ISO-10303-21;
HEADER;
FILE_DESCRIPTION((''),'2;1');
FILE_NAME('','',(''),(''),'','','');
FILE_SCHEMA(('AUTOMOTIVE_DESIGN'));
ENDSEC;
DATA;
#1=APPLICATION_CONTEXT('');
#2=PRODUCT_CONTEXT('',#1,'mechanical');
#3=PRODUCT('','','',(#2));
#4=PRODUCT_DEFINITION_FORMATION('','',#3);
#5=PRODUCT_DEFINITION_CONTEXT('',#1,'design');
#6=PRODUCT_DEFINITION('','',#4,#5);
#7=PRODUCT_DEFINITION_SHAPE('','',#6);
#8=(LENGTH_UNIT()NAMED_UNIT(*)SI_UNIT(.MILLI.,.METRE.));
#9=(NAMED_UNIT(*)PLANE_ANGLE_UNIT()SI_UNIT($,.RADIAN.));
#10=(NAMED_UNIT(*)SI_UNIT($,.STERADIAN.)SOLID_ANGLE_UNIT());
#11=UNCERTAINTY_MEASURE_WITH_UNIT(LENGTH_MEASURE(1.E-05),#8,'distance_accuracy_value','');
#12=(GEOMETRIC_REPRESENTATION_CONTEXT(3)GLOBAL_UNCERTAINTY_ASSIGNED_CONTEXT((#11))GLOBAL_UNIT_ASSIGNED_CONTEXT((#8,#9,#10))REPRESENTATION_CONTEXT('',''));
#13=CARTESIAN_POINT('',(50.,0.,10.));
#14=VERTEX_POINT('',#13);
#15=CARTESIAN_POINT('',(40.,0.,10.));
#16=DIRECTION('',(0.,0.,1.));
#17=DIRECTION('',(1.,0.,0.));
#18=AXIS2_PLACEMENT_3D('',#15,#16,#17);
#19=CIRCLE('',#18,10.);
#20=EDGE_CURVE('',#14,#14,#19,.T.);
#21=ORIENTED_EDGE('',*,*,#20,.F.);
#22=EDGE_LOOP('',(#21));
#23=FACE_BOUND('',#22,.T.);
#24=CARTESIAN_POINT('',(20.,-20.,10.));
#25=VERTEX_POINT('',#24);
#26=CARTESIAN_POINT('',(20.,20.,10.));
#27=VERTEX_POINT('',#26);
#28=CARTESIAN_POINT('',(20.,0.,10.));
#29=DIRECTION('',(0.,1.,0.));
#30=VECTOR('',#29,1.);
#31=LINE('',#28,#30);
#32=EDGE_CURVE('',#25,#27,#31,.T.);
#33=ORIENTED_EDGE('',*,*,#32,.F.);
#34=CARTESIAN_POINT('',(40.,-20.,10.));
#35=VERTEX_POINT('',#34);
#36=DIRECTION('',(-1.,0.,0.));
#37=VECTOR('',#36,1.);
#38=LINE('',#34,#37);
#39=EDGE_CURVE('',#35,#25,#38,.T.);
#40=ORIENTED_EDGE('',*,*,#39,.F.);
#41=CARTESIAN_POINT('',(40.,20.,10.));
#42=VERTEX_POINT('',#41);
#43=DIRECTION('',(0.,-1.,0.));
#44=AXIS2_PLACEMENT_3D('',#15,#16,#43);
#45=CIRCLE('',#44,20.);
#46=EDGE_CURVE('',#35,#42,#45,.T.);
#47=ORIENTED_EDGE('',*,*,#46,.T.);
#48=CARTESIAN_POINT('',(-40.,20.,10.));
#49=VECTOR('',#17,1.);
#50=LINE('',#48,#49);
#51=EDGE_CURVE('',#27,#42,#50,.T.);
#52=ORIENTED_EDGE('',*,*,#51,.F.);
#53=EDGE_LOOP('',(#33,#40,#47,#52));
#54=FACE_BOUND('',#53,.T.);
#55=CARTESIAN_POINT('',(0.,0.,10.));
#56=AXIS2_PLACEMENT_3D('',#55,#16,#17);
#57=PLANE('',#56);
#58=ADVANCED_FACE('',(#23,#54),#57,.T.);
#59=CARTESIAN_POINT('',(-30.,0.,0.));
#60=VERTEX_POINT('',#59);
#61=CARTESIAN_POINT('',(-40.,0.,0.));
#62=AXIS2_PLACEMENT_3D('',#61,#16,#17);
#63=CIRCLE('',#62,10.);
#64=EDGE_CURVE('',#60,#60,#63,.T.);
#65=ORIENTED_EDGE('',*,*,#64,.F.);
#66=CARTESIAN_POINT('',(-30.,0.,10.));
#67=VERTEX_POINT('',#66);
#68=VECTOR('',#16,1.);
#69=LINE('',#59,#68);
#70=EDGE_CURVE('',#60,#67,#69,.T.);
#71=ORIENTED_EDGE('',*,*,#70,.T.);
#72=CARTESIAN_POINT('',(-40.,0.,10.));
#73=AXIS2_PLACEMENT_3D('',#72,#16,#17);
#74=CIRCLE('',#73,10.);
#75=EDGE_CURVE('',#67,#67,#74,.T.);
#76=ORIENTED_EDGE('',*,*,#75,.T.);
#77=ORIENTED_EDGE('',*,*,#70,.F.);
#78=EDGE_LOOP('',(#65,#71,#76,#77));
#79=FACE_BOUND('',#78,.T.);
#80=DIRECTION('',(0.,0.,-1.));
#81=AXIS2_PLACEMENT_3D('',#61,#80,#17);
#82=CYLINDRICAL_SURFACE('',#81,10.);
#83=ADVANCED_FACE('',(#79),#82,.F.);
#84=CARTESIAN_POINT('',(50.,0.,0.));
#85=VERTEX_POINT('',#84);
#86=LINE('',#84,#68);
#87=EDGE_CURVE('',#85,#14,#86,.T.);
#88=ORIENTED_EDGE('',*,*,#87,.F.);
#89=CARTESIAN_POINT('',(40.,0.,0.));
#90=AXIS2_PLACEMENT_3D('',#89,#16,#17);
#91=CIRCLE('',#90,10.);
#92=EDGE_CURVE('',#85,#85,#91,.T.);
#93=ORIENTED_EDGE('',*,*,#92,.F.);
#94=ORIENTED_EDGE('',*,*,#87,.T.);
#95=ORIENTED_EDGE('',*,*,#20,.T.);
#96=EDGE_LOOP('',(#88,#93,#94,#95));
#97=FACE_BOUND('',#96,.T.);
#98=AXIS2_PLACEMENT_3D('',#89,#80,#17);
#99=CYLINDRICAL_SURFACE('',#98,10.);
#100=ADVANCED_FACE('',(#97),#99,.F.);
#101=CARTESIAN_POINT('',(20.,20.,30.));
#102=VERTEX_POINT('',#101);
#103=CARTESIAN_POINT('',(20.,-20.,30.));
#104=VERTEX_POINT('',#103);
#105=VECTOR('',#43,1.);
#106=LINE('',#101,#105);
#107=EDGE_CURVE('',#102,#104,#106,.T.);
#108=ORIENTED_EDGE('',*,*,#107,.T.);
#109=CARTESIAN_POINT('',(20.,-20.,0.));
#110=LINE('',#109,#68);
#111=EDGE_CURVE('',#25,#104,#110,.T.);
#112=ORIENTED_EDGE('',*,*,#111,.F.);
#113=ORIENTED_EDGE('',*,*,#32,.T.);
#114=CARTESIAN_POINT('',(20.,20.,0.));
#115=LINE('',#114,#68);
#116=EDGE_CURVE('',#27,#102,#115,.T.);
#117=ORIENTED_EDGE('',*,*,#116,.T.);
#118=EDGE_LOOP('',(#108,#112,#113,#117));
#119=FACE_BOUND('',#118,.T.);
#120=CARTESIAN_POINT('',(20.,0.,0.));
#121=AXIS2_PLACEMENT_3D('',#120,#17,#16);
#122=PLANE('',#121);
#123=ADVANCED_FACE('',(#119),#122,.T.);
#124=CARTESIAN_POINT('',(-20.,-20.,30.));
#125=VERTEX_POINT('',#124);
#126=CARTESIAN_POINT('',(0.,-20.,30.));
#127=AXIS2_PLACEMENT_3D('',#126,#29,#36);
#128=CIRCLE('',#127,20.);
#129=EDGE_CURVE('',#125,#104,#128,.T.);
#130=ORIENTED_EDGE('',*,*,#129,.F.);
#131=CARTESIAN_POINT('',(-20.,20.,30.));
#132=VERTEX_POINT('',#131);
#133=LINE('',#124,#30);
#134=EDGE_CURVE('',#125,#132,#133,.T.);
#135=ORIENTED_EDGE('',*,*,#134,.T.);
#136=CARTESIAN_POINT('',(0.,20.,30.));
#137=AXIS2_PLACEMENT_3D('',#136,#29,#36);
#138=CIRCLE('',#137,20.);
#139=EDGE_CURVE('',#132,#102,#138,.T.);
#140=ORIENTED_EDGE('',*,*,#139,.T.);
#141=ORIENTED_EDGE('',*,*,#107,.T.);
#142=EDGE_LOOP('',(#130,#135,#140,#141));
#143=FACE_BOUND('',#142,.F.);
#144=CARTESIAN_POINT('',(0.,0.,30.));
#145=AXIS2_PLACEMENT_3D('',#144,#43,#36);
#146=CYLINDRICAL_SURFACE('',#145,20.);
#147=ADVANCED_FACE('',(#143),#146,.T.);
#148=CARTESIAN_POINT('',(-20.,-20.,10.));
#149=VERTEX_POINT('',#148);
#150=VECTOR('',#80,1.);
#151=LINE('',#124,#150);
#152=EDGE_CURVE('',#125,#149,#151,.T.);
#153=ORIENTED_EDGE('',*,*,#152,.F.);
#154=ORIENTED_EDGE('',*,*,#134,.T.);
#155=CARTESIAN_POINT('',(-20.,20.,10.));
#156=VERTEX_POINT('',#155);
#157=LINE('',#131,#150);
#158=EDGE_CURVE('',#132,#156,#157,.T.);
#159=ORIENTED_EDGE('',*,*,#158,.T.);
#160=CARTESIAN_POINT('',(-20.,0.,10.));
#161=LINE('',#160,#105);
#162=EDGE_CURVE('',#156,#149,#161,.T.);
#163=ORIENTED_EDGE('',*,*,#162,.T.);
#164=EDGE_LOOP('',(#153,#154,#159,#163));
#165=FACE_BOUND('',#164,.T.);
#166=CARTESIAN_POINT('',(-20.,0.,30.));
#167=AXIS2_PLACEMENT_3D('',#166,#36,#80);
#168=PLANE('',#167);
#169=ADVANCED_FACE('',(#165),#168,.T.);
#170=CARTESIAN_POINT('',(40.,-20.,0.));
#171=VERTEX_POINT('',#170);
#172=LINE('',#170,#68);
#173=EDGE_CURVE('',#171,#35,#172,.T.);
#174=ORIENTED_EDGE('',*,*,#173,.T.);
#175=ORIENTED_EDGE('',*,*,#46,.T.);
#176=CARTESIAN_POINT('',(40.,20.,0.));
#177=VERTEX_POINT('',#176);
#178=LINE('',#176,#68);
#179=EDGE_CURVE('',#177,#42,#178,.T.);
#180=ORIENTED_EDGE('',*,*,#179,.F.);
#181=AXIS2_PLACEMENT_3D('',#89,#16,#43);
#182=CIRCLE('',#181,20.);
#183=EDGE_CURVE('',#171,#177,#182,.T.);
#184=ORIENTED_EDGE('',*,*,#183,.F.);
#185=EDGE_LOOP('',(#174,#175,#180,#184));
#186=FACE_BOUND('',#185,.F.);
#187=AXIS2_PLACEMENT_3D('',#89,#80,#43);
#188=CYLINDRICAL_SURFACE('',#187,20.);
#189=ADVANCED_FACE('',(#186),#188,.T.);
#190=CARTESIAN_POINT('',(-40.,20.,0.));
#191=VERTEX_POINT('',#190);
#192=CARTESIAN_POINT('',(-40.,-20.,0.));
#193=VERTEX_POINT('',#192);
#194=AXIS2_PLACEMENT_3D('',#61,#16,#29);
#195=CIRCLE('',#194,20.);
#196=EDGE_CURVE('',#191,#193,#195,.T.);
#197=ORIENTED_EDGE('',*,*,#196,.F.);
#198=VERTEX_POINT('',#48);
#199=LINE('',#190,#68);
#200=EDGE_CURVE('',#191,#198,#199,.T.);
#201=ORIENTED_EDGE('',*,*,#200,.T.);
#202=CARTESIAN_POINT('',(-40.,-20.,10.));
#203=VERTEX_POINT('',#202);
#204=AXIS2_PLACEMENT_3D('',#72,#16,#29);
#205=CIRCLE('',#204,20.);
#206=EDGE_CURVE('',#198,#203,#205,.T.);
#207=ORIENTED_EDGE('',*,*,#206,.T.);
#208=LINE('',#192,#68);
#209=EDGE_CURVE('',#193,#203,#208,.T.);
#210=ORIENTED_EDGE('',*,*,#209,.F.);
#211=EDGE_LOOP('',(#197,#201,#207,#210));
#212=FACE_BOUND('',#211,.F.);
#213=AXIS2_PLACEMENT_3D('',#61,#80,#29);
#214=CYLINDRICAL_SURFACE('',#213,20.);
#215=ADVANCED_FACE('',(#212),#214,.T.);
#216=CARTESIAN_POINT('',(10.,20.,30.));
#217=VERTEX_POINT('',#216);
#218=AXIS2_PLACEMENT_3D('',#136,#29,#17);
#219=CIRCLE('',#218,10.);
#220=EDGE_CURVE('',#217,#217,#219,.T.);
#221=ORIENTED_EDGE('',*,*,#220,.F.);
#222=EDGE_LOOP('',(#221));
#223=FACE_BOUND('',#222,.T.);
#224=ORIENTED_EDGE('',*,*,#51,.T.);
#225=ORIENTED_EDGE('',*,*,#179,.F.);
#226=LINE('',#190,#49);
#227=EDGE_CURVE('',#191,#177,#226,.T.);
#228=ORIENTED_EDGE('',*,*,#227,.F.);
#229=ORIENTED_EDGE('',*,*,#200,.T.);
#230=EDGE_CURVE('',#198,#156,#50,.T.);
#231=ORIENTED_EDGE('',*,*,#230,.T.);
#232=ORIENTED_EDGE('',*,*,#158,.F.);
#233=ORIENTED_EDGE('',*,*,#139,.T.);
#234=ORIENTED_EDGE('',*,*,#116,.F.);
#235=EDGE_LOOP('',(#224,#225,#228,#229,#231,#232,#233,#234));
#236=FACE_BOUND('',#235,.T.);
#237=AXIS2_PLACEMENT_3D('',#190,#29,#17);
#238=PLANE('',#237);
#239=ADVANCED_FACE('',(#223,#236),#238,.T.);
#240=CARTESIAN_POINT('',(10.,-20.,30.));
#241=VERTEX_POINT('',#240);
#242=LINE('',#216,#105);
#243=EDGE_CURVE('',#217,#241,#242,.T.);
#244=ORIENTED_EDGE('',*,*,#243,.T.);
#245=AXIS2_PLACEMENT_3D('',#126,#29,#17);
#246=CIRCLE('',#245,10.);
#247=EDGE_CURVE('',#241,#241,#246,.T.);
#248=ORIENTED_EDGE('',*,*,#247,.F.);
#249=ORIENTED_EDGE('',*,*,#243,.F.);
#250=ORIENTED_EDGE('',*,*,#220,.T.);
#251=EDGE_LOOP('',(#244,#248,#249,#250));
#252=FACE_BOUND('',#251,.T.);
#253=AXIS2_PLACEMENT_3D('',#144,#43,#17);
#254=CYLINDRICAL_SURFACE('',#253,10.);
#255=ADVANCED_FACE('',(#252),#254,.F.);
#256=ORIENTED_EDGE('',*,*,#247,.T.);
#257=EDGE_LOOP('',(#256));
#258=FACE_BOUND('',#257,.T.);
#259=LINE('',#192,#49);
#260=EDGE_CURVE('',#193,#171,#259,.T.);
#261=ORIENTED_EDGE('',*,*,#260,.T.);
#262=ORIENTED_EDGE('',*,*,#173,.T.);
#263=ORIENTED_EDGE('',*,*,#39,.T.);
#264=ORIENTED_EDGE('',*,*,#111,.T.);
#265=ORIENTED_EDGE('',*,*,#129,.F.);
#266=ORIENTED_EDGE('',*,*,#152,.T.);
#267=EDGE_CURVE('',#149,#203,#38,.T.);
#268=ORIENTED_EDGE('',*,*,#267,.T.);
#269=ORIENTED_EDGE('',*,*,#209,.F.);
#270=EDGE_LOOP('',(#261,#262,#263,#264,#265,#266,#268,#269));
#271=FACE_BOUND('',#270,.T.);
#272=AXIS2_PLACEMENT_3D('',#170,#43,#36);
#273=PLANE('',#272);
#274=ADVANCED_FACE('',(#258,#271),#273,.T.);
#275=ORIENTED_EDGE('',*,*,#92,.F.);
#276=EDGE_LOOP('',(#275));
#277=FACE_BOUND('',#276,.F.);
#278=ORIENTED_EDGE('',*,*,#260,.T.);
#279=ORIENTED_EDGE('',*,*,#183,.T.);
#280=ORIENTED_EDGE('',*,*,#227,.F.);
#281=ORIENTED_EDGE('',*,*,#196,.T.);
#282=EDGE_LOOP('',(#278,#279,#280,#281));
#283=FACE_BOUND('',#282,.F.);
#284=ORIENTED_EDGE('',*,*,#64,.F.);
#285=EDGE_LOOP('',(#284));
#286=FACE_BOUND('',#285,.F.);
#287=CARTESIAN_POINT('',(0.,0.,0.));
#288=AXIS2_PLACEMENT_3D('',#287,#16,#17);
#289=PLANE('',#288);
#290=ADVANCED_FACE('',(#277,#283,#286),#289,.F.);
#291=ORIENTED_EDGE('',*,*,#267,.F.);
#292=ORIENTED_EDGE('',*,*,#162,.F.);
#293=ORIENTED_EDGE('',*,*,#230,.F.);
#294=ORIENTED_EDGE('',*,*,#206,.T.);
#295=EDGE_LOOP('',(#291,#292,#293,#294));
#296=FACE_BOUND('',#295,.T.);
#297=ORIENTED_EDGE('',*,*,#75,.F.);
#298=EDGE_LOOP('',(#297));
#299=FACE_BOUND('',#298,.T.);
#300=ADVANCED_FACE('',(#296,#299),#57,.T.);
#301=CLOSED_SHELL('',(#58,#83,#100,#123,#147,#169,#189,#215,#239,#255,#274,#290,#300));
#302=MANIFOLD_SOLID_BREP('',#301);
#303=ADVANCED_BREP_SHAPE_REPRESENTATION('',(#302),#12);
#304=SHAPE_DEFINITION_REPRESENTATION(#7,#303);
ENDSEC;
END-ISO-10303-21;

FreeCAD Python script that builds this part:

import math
import FreeCAD as App
import Part
import Sketcher
from FreeCAD import Vector
Q = App.Units.Quantity

doc = App.newDocument("Part")
body = doc.addObject("PartDesign::Body", "Body")

# Sketch on XY plane
sketch1 = body.newObject("Sketcher::SketchObject", "Sketch")
sketch1.AttachmentSupport = (doc.getObject("XY_Plane"), [""])
sketch1.MapMode = "FlatFace"
sketch1.addGeometry([
    Part.LineSegment(Vector(-40, -20, 0), Vector(40, -20, 0)),  # 0
    Part.ArcOfCircle(Part.Circle(Vector(40, 0, 0), Vector(0, 0, 1), 20), math.radians(-90), math.radians(90)),  # 1
    Part.LineSegment(Vector(40, 20, 0), Vector(-40, 20, 0)),  # 2
    Part.ArcOfCircle(Part.Circle(Vector(-40, 0, 0), Vector(0, 0, 1), 20), math.radians(90), math.radians(270)),  # 3
    Part.Circle(Vector(-40, 0, 0), Vector(0, 0, 1), 10),  # 4
    Part.Circle(Vector(40, 0, 0), Vector(0, 0, 1), 10),  # 5
], False)
sketch1.addConstraint([
    Sketcher.Constraint("Tangent", 0, 2, 1, 1),
    Sketcher.Constraint("Tangent", 1, 2, 2, 1),
    Sketcher.Constraint("Tangent", 2, 2, 3, 1),
    Sketcher.Constraint("Tangent", 3, 2, 0, 1),
    Sketcher.Constraint("Horizontal", 0),
    Sketcher.Constraint("Horizontal", 2),
    Sketcher.Constraint("Coincident", 4, 3, 3, 3),
    Sketcher.Constraint("Coincident", 5, 3, 1, 3),
    Sketcher.Constraint("Equal", 4, 5),
    Sketcher.Constraint("Symmetric", 1, 3, 3, 3, -1, 1),
    Sketcher.Constraint("Radius", 1, Q("20 mm")),
    Sketcher.Constraint("DistanceX", 0, 1, 0, 2, Q("80 mm")),
    Sketcher.Constraint("Diameter", 4, Q("20 mm")),
])
pad1 = body.newObject("PartDesign::Pad", "Pad")
pad1.Profile = sketch1
pad1.Length = 10

# Sketch on XZ plane
sketch2 = body.newObject("Sketcher::SketchObject", "Sketch001")
sketch2.AttachmentSupport = (doc.getObject("XZ_Plane"), [""])
sketch2.MapMode = "FlatFace"
sketch2.addGeometry([
    Part.LineSegment(Vector(20, 0, 0), Vector(-20, 0, 0)),  # 0
    Part.LineSegment(Vector(-20, 0, 0), Vector(-20, 30, 0)),  # 1
    Part.ArcOfCircle(Part.Circle(Vector(0, 30, 0), Vector(0, 0, 1), 20), math.radians(0), math.radians(180)),  # 2
    Part.LineSegment(Vector(20, 30, 0), Vector(20, 0, 0)),  # 3
    Part.Circle(Vector(0, 30, 0), Vector(0, 0, 1), 10),  # 4
], False)
sketch2.addConstraint([
    Sketcher.Constraint("Coincident", 0, 2, 1, 1),
    Sketcher.Constraint("Tangent", 1, 2, 2, 2),
    Sketcher.Constraint("Tangent", 2, 1, 3, 1),
    Sketcher.Constraint("Coincident", 3, 2, 0, 1),
    Sketcher.Constraint("Horizontal", 0),
    Sketcher.Constraint("Vertical", 1),
    Sketcher.Constraint("Vertical", 3),
    Sketcher.Constraint("Coincident", 4, 3, 2, 3),
    Sketcher.Constraint("Symmetric", 0, 2, 3, 2, -1, 1),
    Sketcher.Constraint("Diameter", 4, Q("20 mm")),
    Sketcher.Constraint("Radius", 2, Q("20 mm")),
    Sketcher.Constraint("DistanceY", 1, 1, 1, 2, Q("30 mm")),
])
pad2 = body.newObject("PartDesign::Pad", "Pad001")
pad2.Profile = sketch2
pad2.Length = 40
pad2.Midplane = True

doc.recompute()
